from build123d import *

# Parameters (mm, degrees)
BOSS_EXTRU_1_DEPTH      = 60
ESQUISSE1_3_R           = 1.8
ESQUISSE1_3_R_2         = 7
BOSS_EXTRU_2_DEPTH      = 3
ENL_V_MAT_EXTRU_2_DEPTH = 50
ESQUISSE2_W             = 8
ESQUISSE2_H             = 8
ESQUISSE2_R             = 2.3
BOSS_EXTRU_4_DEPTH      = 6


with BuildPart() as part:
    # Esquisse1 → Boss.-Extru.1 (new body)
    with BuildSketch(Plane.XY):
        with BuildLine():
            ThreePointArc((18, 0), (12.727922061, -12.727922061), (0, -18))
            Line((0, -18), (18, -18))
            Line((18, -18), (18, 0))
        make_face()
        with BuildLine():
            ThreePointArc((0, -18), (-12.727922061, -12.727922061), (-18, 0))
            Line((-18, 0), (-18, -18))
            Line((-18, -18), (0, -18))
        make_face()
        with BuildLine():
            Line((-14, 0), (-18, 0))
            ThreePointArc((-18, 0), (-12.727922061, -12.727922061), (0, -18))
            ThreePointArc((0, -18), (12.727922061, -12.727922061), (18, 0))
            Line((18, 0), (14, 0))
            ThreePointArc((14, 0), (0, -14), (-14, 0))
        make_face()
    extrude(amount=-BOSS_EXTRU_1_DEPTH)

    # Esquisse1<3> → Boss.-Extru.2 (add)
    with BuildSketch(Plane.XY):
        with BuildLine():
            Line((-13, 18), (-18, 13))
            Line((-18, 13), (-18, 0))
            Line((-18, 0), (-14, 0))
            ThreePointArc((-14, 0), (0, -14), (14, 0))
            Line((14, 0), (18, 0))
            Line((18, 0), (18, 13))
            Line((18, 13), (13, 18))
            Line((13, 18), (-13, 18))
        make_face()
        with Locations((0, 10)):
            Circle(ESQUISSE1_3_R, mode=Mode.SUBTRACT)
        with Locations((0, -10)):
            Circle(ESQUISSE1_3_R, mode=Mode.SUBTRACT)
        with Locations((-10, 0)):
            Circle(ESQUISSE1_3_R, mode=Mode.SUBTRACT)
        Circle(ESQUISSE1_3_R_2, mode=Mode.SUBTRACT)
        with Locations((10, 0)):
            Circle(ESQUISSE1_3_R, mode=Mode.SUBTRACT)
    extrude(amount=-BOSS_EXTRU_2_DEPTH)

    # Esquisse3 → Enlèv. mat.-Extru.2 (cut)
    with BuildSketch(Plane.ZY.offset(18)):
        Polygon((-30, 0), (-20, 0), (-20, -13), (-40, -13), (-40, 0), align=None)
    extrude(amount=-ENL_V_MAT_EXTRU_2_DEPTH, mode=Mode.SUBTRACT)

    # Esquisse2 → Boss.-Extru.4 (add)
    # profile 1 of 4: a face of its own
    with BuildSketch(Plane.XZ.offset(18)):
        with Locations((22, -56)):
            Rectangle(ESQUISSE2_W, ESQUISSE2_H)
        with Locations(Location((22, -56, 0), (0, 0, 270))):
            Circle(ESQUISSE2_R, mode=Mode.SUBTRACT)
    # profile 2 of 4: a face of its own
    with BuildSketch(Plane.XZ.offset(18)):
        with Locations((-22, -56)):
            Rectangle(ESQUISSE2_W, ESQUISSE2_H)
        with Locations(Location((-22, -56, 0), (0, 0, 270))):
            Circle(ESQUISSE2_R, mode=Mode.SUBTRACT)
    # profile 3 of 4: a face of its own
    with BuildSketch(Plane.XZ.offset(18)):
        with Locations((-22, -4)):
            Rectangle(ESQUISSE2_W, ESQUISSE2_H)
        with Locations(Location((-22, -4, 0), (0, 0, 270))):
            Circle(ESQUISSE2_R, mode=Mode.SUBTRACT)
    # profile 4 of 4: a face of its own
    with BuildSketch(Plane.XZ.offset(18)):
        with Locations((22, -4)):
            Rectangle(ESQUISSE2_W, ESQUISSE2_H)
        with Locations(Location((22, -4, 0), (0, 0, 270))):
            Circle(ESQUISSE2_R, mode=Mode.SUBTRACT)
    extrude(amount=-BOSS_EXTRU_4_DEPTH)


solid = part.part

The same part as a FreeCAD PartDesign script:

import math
import FreeCAD as App
import Part
import Sketcher

V = App.Vector
Q = App.Units.Quantity


def add_polygon(sketch, points):
    """Adds a closed chain of lines whose ends are joined by coincident constraints."""
    first, n = sketch.GeometryCount, len(points)
    for a, b in zip(points, points[1:] + points[:1]):
        sketch.addGeometry(Part.LineSegment(App.Vector(*a, 0), App.Vector(*b, 0)), False)
    for i in range(n):
        sketch.addConstraint(Sketcher.Constraint("Coincident", first + i, 2, first + (i + 1) % n, 1))

doc = App.newDocument("Part")
body = doc.addObject("PartDesign::Body", "Body")

# Sketch on XY plane
sketch1 = doc.addObject("Sketcher::SketchObject", "Sketch")
body.addObject(sketch1)
sketch1.AttachmentSupport = (doc.XY_Plane, [""])
sketch1.MapMode = "FlatFace"
sketch1.addGeometry([
    Part.LineSegment(V(18, -18, 0), V(18, 0, 0)),  # 0
    Part.LineSegment(V(18, 0, 0), V(14, 0, 0)),  # 1
    Part.ArcOfCircle(Part.Circle(V(0, 0, 0), V(0, 0, 1), 14), math.radians(180), math.radians(360)),  # 2
    Part.LineSegment(V(-14, 0, 0), V(-18, 0, 0)),  # 3
    Part.LineSegment(V(-18, 0, 0), V(-18, -18, 0)),  # 4
    Part.LineSegment(V(-18, -18, 0), V(18, -18, 0)),  # 5
], False)
sketch1.addConstraint([
    Sketcher.Constraint("Coincident", 0, 2, 1, 1),
    Sketcher.Constraint("Coincident", 1, 2, 2, 2),
    Sketcher.Constraint("Coincident", 2, 1, 3, 1),
    Sketcher.Constraint("Coincident", 3, 2, 4, 1),
    Sketcher.Constraint("Coincident", 4, 2, 5, 1),
    Sketcher.Constraint("Coincident", 5, 2, 0, 1),
    Sketcher.Constraint("Vertical", 0),
    Sketcher.Constraint("Horizontal", 1),
    Sketcher.Constraint("Horizontal", 3),
    Sketcher.Constraint("Vertical", 4),
    Sketcher.Constraint("Horizontal", 5),
    Sketcher.Constraint("Coincident", 2, 3, -1, 1),
    Sketcher.Constraint("Symmetric", 0, 2, 3, 2, -1, 1),
    Sketcher.Constraint("PointOnObject", 0, 2, -1),
    Sketcher.Constraint("Radius", 2, Q("14 mm")),
    Sketcher.Constraint("DistanceX", 1, 2, 1, 1, Q("4 mm")),
    Sketcher.Constraint("DistanceY", 0, 1, 0, 2, Q("18 mm")),
])
pad1 = doc.addObject("PartDesign::Pad", "Pad")
body.addObject(pad1)
pad1.Profile = sketch1
pad1.Length = 60
pad1.Reversed = True

# Sketch on XY plane
sketch2 = doc.addObject("Sketcher::SketchObject", "Sketch001")
body.addObject(sketch2)
sketch2.AttachmentSupport = (doc.XY_Plane, [""])
sketch2.MapMode = "FlatFace"
sketch2.addGeometry([
    Part.LineSegment(V(-13, 18, 0), V(-18, 13, 0)),  # 0
    Part.LineSegment(V(-18, 13, 0), V(-18, 0, 0)),  # 1
    Part.LineSegment(V(-18, 0, 0), V(-14, 0, 0)),  # 2
    Part.ArcOfCircle(Part.Circle(V(0, 0, 0), V(0, 0, 1), 14), math.radians(180), math.radians(360)),  # 3
    Part.LineSegment(V(14, 0, 0), V(18, 0, 0)),  # 4
    Part.LineSegment(V(18, 0, 0), V(18, 13, 0)),  # 5
    Part.LineSegment(V(18, 13, 0), V(13, 18, 0)),  # 6
    Part.LineSegment(V(13, 18, 0), V(-13, 18, 0)),  # 7
    Part.Circle(V(0, -10, 0), V(0, 0, 1), 1.8),  # 8
    Part.Circle(V(-10, 0, 0), V(0, 0, 1), 1.8),  # 9
    Part.Circle(V(0, 0, 0), V(0, 0, 1), 7),  # 10
    Part.Circle(V(10, 0, 0), V(0, 0, 1), 1.8),  # 11
    Part.Circle(V(0, 10, 0), V(0, 0, 1), 1.8),  # 12
], False)
sketch2.addConstraint([
    Sketcher.Constraint("Coincident", 0, 2, 1, 1),
    Sketcher.Constraint("Coincident", 1, 2, 2, 1),
    Sketcher.Constraint("Coincident", 2, 2, 3, 1),
    Sketcher.Constraint("Coincident", 3, 2, 4, 1),
    Sketcher.Constraint("Coincident", 4, 2, 5, 1),
    Sketcher.Constraint("Coincident", 5, 2, 6, 1),
    Sketcher.Constraint("Coincident", 6, 2, 7, 1),
    Sketcher.Constraint("Coincident", 7, 2, 0, 1),
    Sketcher.Constraint("Vertical", 1),
    Sketcher.Constraint("Horizontal", 2),
    Sketcher.Constraint("Horizontal", 4),
    Sketcher.Constraint("Vertical", 5),
    Sketcher.Constraint("Horizontal", 7),
    Sketcher.Constraint("Coincident", 3, 3, -1, 1),
    Sketcher.Constraint("Coincident", 10, 3, -1, 1),
    Sketcher.Constraint("Equal", 8, 9),
    Sketcher.Constraint("Equal", 9, 11),
    Sketcher.Constraint("Equal", 11, 12),
    Sketcher.Constraint("Symmetric", 9, 3, 11, 3, -1, 1),
    Sketcher.Constraint("Symmetric", 8, 3, 12, 3, -1, 1),
    Sketcher.Constraint("Symmetric", 1, 2, 4, 2, -1, 1),
    Sketcher.Constraint("PointOnObject", 8, 3, -2),
    Sketcher.Constraint("PointOnObject", 9, 3, -1),
    Sketcher.Constraint("PointOnObject", 1, 2, -1),
    Sketcher.Constraint("Perpendicular", 0, 6),
    Sketcher.Constraint("Horizontal", 0, 2, 5, 2),
    Sketcher.Constraint("Equal", 0, 6),
    Sketcher.Constraint("Diameter", 10, Q("14 mm")),
    Sketcher.Constraint("Radius", 3, Q("14 mm")),
    Sketcher.Constraint("Diameter", 8, Q("3.6 mm")),
    Sketcher.Constraint("DistanceX", 2, 1, 2, 2, Q("4 mm")),
    Sketcher.Constraint("DistanceX", 7, 2, 7, 1, Q("26 mm")),
    Sketcher.Constraint("DistanceY", 1, 2, 1, 1, Q("13 mm")),
    Sketcher.Constraint("DistanceY", 8, 3, -1, 1, Q("10 mm")),
    Sketcher.Constraint("DistanceX", 9, 3, -1, 1, Q("10 mm")),
])
pad2 = doc.addObject("PartDesign::Pad", "Pad001")
body.addObject(pad2)
pad2.Profile = sketch2
pad2.Length = 3
pad2.Reversed = True

# Sketch on YZ plane
sketch3 = doc.addObject("Sketcher::SketchObject", "Sketch002")
body.addObject(sketch3)
sketch3.AttachmentSupport = (doc.YZ_Plane, [""])
sketch3.MapMode = "FlatFace"
sketch3.AttachmentOffset = App.Placement(V(0, 0, -18), App.Rotation())
add_polygon(sketch3, [(0, -20), (0, -40), (-13, -40), (-13, -20)])  # lines 0-3
sketch3.addConstraint([
    Sketcher.Constraint("Vertical", 0),
    Sketcher.Constraint("Horizontal", 1),
    Sketcher.Constraint("Vertical", 2),
    Sketcher.Constraint("Horizontal", 3),
    Sketcher.Constraint("PointOnObject", 0, 2, -2),
    Sketcher.Constraint("DistanceX", 1, 2, 1, 1, Q("13 mm")),
    Sketcher.Constraint("DistanceY", 0, 2, 0, 1, Q("20 mm")),
    Sketcher.Constraint("DistanceY", 0, 2, -1, 1, Q("40 mm")),
])
pocket1 = doc.addObject("PartDesign::Pocket", "Pocket")
body.addObject(pocket1)
pocket1.Profile = sketch3
pocket1.Length = 50
pocket1.Reversed = True

# Sketch on XZ plane
sketch4 = doc.addObject("Sketcher::SketchObject", "Sketch003")
body.addObject(sketch4)
sketch4.AttachmentSupport = (doc.XZ_Plane, [""])
sketch4.MapMode = "FlatFace"
sketch4.AttachmentOffset = App.Placement(V(0, 0, 18), App.Rotation())
add_polygon(sketch4, [(18, -52), (18, -60), (26, -60), (26, -52)])  # lines 0-3
sketch4.addGeometry(Part.Circle(V(22, -56, 0), V(0, 0, 1), 2.3), False)  # 4
add_polygon(sketch4, [(-26, -52), (-26, -60), (-18, -60), (-18, -52)])  # lines 5-8
sketch4.addGeometry(Part.Circle(V(-22, -56, 0), V(0, 0, 1), 2.3), False)  # 9
add_polygon(sketch4, [(-26, 0), (-26, -8), (-18, -8), (-18, 0)])  # lines 10-13
sketch4.addGeometry(Part.Circle(V(-22, -4, 0), V(0, 0, 1), 2.3), False)  # 14
add_polygon(sketch4, [(18, 0), (18, -8), (26, -8), (26, 0)])  # lines 15-18
sketch4.addGeometry(Part.Circle(V(22, -4, 0), V(0, 0, 1), 2.3), False)  # 19
sketch4.addConstraint([
    Sketcher.Constraint("Vertical", 0),
    Sketcher.Constraint("Horizontal", 1),
    Sketcher.Constraint("Vertical", 2),
    Sketcher.Constraint("Horizontal", 3),
    Sketcher.Constraint("Vertical", 5),
    Sketcher.Constraint("Horizontal", 6),
    Sketcher.Constraint("Vertical", 7),
    Sketcher.Constraint("Horizontal", 8),
    Sketcher.Constraint("Vertical", 10),
    Sketcher.Constraint("Horizontal", 11),
    Sketcher.Constraint("Vertical", 12),
    Sketcher.Constraint("Horizontal", 13),
    Sketcher.Constraint("Vertical", 15),
    Sketcher.Constraint("Horizontal", 16),
    Sketcher.Constraint("Vertical", 17),
    Sketcher.Constraint("Horizontal", 18),
    Sketcher.Constraint("Equal", 4, 9),
    Sketcher.Constraint("Equal", 9, 14),
    Sketcher.Constraint("Equal", 14, 19),
    Sketcher.Constraint("Symmetric", 13, 2, 17, 2, -1, 1),
    Sketcher.Constraint("Symmetric", 4, 3, 9, 3, -2),
    Sketcher.Constraint("Symmetric", 14, 3, 19, 3, -2),
    Sketcher.Constraint("Symmetric", 1, 2, 5, 2, -2),
    Sketcher.Constraint("Symmetric", 3, 2, 7, 2, -2),
    Sketcher.Constraint("Symmetric", 11, 2, 15, 2, -2),
    Sketcher.Constraint("PointOnObject", 12, 2, -1),
    Sketcher.Constraint("Vertical", 9, 3, 14, 3),
    Sketcher.Constraint("Vertical", 8, 2, 10, 2),
    Sketcher.Constraint("Vertical", 7, 2, 11, 2),
    Sketcher.Constraint("Equal", 18, 0),
    Sketcher.Constraint("Equal", 7, 10),
    Sketcher.Constraint("Diameter", 4, Q("4.6 mm")),
    Sketcher.Constraint("DistanceX", 1, 1, 1, 2, Q("8 mm")),
    Sketcher.Constraint("DistanceX", -1, 1, 4, 3, Q("22 mm")),
    Sketcher.Constraint("DistanceY", 4, 3, -1, 1, Q("56 mm")),
    Sketcher.Constraint("DistanceY", 14, 3, -1, 1, Q("4 mm")),
    Sketcher.Constraint("DistanceX", -1, 1, 0, 2, Q("18 mm")),
    Sketcher.Constraint("DistanceY", 0, 2, -1, 1, Q("60 mm")),
])
pad3 = doc.addObject("PartDesign::Pad", "Pad002")
body.addObject(pad3)
pad3.Profile = sketch4
pad3.Length = 6
pad3.Reversed = True

doc.recompute()
